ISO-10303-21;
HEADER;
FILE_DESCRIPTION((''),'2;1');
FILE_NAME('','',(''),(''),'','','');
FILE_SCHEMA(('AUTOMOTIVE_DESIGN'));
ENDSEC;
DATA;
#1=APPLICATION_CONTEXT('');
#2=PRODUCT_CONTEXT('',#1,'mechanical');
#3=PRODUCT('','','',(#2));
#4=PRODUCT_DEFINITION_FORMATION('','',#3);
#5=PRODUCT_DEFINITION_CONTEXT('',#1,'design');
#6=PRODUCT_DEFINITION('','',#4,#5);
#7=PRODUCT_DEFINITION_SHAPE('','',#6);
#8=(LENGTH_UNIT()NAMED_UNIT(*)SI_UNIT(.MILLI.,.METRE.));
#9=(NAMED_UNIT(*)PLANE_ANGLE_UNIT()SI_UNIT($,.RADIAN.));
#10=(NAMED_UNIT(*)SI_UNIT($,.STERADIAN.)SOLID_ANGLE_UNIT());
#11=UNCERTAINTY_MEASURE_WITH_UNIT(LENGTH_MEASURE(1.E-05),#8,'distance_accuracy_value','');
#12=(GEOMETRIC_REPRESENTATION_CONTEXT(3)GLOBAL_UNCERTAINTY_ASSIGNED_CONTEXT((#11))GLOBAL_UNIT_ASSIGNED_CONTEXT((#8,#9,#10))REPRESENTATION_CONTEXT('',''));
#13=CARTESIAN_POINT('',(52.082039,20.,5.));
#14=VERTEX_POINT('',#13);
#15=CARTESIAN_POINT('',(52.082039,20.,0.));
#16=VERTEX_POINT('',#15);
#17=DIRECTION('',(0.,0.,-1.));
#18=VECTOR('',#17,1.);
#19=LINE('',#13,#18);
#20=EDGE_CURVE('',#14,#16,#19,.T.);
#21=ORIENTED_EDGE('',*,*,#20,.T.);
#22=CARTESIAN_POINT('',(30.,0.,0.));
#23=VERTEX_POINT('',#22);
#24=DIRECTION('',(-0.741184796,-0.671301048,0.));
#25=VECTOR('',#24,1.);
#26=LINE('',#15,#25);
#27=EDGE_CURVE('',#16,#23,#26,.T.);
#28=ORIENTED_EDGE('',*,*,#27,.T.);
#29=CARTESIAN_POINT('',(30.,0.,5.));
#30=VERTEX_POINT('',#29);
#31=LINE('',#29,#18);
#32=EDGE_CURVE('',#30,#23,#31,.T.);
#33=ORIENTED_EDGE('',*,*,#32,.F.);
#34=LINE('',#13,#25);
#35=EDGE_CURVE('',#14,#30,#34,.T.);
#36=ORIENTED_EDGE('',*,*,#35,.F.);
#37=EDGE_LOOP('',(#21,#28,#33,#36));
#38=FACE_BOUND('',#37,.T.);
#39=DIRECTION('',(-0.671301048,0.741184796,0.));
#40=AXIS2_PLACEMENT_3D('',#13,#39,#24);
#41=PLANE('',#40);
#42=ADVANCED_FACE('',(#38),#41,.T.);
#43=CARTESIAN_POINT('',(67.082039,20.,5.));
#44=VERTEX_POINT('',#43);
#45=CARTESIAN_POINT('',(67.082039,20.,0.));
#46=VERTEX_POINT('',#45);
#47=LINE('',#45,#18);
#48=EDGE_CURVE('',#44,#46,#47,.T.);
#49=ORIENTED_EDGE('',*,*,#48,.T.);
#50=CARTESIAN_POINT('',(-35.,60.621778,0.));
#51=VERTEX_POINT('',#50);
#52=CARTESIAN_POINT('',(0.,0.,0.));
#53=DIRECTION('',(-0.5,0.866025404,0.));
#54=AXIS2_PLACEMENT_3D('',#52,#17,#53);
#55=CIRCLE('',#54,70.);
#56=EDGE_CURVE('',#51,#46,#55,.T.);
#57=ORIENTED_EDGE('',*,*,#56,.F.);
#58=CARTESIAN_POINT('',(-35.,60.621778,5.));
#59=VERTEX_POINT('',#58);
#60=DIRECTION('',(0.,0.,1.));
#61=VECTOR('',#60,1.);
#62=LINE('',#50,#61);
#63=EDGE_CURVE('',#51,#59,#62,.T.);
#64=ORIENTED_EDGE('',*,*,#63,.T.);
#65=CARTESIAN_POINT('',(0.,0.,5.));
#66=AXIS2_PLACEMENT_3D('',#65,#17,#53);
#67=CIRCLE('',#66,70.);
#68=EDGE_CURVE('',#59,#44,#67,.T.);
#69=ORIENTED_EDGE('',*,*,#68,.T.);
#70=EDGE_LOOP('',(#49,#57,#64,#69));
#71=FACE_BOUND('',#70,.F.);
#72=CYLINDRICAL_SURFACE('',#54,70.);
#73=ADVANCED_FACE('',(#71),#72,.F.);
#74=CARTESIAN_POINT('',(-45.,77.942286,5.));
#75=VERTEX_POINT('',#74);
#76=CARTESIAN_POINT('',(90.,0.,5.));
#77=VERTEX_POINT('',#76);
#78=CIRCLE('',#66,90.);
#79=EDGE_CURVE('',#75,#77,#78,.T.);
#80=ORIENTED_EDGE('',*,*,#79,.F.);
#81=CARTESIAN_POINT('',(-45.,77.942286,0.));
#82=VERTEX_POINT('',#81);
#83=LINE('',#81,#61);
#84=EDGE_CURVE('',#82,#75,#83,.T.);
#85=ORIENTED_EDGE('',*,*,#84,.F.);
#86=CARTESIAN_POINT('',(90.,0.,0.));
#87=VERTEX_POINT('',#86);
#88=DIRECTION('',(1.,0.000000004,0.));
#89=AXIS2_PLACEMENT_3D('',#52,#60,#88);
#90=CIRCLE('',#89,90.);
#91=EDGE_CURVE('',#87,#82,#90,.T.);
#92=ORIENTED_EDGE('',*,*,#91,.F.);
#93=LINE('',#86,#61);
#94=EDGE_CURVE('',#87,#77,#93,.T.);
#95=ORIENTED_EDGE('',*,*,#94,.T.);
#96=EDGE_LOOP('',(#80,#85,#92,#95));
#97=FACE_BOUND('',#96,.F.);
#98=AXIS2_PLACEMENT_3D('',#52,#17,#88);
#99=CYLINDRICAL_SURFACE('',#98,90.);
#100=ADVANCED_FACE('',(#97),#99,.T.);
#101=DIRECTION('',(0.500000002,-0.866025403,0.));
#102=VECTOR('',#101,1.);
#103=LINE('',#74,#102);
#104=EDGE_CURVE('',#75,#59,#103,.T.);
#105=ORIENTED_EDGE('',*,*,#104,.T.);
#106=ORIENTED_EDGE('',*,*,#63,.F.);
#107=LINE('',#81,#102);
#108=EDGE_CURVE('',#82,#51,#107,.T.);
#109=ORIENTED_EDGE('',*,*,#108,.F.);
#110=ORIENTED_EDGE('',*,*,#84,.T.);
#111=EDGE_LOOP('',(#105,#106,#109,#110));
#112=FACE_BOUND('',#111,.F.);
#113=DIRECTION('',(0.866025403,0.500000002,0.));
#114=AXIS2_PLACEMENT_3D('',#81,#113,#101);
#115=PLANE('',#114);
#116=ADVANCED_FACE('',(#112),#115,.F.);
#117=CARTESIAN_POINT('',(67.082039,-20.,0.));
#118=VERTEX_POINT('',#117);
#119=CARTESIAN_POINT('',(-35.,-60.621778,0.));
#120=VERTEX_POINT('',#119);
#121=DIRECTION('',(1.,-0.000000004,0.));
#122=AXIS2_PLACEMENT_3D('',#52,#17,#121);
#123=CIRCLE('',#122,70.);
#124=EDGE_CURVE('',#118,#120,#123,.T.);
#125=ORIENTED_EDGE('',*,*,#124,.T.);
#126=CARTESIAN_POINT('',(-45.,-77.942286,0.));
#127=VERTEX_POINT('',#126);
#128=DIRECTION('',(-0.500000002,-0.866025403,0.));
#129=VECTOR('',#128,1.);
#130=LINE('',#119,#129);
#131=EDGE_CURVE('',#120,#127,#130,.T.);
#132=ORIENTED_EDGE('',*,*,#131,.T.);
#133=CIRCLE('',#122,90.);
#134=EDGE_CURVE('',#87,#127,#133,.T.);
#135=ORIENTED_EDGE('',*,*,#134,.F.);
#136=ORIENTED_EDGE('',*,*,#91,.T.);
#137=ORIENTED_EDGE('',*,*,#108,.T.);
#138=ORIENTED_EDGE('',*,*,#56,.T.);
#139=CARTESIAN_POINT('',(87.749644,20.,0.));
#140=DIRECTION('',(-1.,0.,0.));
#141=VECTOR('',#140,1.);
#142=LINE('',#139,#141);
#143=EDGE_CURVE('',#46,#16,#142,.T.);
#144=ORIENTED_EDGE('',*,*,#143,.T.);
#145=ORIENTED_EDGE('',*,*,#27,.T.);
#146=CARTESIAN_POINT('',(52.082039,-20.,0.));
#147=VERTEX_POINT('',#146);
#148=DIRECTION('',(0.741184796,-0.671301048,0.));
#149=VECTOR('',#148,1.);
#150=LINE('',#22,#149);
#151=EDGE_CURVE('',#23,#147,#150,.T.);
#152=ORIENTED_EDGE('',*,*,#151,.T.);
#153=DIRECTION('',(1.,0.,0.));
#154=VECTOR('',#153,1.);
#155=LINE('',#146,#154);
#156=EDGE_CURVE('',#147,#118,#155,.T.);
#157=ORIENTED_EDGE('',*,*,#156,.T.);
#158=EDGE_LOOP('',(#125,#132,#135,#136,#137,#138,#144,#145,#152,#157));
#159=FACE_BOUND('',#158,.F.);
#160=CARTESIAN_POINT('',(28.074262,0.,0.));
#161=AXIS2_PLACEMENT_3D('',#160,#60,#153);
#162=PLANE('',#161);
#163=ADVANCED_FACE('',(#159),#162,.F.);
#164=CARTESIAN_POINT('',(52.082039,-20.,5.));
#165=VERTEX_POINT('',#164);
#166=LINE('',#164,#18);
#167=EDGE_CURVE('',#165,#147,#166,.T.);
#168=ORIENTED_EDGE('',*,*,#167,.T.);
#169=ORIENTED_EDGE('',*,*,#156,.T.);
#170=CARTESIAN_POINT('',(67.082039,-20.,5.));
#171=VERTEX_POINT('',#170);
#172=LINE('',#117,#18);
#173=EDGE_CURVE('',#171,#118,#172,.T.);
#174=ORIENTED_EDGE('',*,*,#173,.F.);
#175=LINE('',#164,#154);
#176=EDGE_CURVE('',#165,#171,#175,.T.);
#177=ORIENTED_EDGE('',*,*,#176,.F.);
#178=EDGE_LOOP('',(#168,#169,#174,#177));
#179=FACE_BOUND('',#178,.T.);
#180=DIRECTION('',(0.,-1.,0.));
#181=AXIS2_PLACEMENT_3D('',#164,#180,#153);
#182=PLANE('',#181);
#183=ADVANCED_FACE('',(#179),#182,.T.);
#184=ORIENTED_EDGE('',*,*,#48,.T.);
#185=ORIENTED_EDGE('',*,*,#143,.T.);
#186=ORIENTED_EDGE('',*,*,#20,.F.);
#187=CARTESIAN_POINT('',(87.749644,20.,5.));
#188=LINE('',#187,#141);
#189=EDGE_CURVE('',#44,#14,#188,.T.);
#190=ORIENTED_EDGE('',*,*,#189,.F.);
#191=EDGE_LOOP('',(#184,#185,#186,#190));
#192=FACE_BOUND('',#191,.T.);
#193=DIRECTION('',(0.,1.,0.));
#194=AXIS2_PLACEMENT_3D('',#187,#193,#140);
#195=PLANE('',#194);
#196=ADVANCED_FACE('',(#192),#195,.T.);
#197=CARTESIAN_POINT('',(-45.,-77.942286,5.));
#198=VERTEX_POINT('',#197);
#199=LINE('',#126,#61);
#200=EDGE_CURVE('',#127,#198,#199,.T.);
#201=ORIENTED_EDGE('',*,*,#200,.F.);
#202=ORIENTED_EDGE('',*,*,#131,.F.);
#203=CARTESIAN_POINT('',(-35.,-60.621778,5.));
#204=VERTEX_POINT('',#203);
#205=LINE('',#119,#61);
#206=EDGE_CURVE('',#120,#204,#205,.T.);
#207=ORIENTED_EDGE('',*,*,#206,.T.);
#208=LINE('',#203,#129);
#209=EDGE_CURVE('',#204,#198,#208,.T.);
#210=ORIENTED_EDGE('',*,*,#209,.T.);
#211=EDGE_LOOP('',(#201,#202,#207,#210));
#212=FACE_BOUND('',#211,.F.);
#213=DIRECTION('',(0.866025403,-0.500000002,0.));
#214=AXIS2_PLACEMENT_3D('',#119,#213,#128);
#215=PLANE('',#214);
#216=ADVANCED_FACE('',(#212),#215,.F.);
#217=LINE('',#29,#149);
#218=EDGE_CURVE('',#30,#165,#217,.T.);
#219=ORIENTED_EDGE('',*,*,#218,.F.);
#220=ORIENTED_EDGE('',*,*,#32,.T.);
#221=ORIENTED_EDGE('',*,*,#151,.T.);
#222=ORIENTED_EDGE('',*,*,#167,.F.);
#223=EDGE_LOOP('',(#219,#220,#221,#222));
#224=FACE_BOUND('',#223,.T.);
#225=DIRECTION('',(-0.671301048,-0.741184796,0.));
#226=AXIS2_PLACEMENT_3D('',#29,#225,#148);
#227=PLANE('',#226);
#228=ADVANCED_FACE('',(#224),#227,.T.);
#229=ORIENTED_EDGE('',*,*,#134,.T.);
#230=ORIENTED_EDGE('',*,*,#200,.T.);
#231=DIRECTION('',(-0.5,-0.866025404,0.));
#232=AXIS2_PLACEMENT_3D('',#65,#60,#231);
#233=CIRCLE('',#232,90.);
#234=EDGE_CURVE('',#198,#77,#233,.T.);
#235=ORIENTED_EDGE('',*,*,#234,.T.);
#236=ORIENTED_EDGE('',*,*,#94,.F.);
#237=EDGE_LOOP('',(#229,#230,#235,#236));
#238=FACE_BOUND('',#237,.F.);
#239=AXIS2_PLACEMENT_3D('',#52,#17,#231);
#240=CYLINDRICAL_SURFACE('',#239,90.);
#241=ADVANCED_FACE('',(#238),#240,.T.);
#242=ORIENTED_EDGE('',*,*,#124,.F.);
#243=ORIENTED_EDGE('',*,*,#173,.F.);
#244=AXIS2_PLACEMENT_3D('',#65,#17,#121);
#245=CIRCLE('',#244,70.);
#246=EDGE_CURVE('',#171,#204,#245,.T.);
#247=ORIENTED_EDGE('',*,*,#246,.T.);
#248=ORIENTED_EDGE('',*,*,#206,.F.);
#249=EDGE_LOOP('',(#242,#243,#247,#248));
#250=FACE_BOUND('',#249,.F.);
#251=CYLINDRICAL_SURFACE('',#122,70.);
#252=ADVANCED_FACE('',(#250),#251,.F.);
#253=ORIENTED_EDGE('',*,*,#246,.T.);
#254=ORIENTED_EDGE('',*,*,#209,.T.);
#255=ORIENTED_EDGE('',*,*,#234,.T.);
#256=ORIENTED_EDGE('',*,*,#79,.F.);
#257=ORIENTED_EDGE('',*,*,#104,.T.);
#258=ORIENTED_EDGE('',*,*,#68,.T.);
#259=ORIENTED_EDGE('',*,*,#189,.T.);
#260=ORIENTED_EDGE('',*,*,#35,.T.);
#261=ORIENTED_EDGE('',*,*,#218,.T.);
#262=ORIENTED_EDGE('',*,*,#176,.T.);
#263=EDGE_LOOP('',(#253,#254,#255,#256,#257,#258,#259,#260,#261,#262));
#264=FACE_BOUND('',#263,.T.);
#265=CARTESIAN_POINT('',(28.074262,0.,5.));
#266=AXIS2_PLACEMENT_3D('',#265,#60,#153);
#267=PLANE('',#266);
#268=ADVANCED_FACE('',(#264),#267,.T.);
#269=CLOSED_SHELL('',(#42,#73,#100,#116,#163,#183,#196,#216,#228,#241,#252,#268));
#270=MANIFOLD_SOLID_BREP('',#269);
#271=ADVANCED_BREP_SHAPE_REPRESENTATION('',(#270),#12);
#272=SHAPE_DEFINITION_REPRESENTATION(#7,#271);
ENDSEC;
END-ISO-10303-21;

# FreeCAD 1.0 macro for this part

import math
import FreeCAD as App
import Part
import Sketcher
from FreeCAD import Vector
Q = App.Units.Quantity

doc = App.newDocument("Part")
body = doc.addObject("PartDesign::Body", "Body")

sketch1 = body.newObject("Sketcher::SketchObject", "Sketch")
sketch1.AttachmentSupport = (doc.getObject("XY_Plane"), [""])
sketch1.MapMode = "FlatFace"
sketch1.addGeometry(Part.ArcOfCircle(Part.Circle(Vector(0, 0, 0), Vector(0, 0, 1), 90), math.radians(0), math.radians(120)), False)
sketch1.addGeometry(Part.LineSegment(Vector(-45, 78, 0), Vector(-35, 61, 0)), False)
sketch1.addGeometry(Part.ArcOfCircle(Part.Circle(Vector(0, 0, 0), Vector(0, 0, 1), 70), math.radians(0), math.radians(120)), False)
sketch1.addGeometry(Part.ArcOfCircle(Part.Circle(Vector(0, 0, 0), Vector(0, 0, 1), 70), math.radians(-120), math.radians(0)), False)
sketch1.addGeometry(Part.LineSegment(Vector(-35, -61, 0), Vector(-45, -78, 0)), False)
sketch1.addGeometry(Part.ArcOfCircle(Part.Circle(Vector(0, 0, 0), Vector(0, 0, 1), 90), math.radians(-120), math.radians(0)), False)
sketch1.addConstraint(Sketcher.Constraint("Coincident", 0, 2, 1, 1))
sketch1.addConstraint(Sketcher.Constraint("Coincident", 1, 2, 2, 2))
sketch1.addConstraint(Sketcher.Constraint("Tangent", 2, 1, 3, 2))
sketch1.addConstraint(Sketcher.Constraint("Coincident", 3, 1, 4, 1))
sketch1.addConstraint(Sketcher.Constraint("Coincident", 4, 2, 5, 1))
sketch1.addConstraint(Sketcher.Constraint("Tangent", 5, 2, 0, 1))
sketch1.addConstraint(Sketcher.Constraint("Coincident", 0, 3, -1, 1))
sketch1.addConstraint(Sketcher.Constraint("Coincident", 2, 3, -1, 1))
sketch1.addConstraint(Sketcher.Constraint("Equal", 2, 3))
sketch1.addConstraint(Sketcher.Constraint("Equal", 0, 5))
sketch1.addConstraint(Sketcher.Constraint("PointOnObject", 2, 1, -1))
sketch1.addConstraint(Sketcher.Constraint("PointOnObject", 5, 2, -1))
sketch1.addConstraint(Sketcher.Constraint("Vertical", 1, 2, 3, 1))
sketch1.addConstraint(Sketcher.Constraint("Vertical", 0, 2, 4, 2))
sketch1.addConstraint(Sketcher.Constraint("Radius", 0, Q("90 mm")))
sketch1.addConstraint(Sketcher.Constraint("Radius", 2, Q("70 mm")))
sketch1.addConstraint(Sketcher.Constraint("Angle", 1, Q("-60 deg")))
sketch1.addConstraint(Sketcher.Constraint("DistanceX", 0, 2, -1, 1, Q("45 mm")))
pad1 = body.newObject("PartDesign::Pad", "Pad")
pad1.Profile = sketch1
pad1.Length = 5

sketch2 = body.newObject("Sketcher::SketchObject", "Sketch001")
sketch2.AttachmentSupport = (doc.getObject("XY_Plane"), [""])
sketch2.MapMode = "FlatFace"
sketch2.AttachmentOffset = App.Placement(Vector(0, 0, 5), App.Rotation())
sketch2.addGeometry(Part.LineSegment(Vector(88, 20, 0), Vector(52, 20, 0)), False)
sketch2.addGeometry(Part.LineSegment(Vector(52, 20, 0), Vector(30, 0, 0)), False)
sketch2.addGeometry(Part.LineSegment(Vector(30, 0, 0), Vector(52, -20, 0)), False)
sketch2.addGeometry(Part.LineSegment(Vector(52, -20, 0), Vector(88, -20, 0)), False)
sketch2.addGeometry(Part.ArcOfCircle(Part.Circle(Vector(0, 0, 0), Vector(0, 0, 1), 90), math.radians(-13), math.radians(13)), False)
sketch2.addConstraint(Sketcher.Constraint("Coincident", 0, 2, 1, 1))
sketch2.addConstraint(Sketcher.Constraint("Coincident", 1, 2, 2, 1))
sketch2.addConstraint(Sketcher.Constraint("Coincident", 2, 2, 3, 1))
sketch2.addConstraint(Sketcher.Constraint("Coincident", 3, 2, 4, 1))
sketch2.addConstraint(Sketcher.Constraint("Coincident", 4, 2, 0, 1))
sketch2.addConstraint(Sketcher.Constraint("Horizontal", 0))
sketch2.addConstraint(Sketcher.Constraint("Horizontal", 3))
sketch2.addConstraint(Sketcher.Constraint("Coincident", 4, 3, -1, 1))
sketch2.addConstraint(Sketcher.Constraint("Symmetric", 0, 2, 2, 2, -1))
sketch2.addConstraint(Sketcher.Constraint("PointOnObject", 1, 2, -1))
sketch2.addConstraint(Sketcher.Constraint("DistanceY", -1, 1, 0, 2, Q("20 mm")))
sketch2.addConstraint(Sketcher.Constraint("DistanceX", -1, 1, 1, 2, Q("30 mm")))
sketch2.addConstraint(Sketcher.Constraint("Radius", 4, Q("90.000005 mm")))
sketch2.addConstraint(Sketcher.Constraint("DistanceX", 0, 2, 0, 1, Q("35.667605 mm")))
pad2 = body.newObject("PartDesign::Pad", "Pad001")
pad2.Profile = sketch2
pad2.Length = 5
pad2.Reversed = True

doc.recompute()
